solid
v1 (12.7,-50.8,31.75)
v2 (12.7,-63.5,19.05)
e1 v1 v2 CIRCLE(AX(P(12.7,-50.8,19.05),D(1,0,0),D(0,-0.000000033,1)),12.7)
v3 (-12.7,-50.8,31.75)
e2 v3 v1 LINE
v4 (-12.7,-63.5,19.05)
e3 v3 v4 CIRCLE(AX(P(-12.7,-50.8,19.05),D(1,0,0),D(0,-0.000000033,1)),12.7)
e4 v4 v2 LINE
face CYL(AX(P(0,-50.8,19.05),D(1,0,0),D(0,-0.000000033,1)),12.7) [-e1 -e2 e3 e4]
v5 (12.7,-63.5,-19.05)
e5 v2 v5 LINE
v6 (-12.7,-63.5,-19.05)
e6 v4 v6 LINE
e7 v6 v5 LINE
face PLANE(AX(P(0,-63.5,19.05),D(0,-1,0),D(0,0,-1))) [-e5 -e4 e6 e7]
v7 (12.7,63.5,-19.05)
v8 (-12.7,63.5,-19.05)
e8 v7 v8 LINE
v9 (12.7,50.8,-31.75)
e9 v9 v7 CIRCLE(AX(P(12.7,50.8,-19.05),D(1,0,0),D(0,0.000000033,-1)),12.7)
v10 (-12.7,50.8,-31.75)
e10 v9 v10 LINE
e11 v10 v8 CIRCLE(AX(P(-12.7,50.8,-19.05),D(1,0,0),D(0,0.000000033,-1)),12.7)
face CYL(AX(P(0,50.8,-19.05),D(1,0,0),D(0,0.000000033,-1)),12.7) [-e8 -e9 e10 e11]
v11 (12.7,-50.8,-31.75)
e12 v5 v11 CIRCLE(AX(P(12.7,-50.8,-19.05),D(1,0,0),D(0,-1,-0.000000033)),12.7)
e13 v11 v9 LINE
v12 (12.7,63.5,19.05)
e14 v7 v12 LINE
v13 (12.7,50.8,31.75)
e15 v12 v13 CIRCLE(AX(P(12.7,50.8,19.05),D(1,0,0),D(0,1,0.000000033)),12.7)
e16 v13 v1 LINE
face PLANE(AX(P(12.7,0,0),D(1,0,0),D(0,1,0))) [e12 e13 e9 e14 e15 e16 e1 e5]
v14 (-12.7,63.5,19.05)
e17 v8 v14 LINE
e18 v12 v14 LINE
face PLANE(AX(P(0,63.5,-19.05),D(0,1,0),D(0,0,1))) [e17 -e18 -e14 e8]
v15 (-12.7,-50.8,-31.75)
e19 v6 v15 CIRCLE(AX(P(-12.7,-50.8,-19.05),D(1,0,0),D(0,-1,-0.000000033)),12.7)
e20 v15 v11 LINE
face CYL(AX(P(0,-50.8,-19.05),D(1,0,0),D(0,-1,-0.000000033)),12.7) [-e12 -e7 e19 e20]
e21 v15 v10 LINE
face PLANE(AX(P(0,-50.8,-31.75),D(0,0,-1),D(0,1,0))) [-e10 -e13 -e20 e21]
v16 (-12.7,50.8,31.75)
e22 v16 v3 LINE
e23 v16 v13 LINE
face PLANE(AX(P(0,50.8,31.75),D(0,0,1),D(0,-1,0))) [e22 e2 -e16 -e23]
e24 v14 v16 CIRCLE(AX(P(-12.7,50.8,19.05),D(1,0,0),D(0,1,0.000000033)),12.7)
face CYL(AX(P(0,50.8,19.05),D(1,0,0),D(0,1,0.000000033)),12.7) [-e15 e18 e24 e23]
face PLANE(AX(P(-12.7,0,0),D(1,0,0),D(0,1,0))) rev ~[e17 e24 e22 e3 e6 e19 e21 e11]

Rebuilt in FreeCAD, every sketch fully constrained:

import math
import FreeCAD as App
import Part
import Sketcher
Q = App.Units.Quantity

doc = App.newDocument("Part")
body = doc.addObject("PartDesign::Body", "Body")

sketch1 = body.newObject("Sketcher::SketchObject", "Sketch")
sketch1.AttachmentSupport = (doc.getObject("YZ_Plane"), [""])
sketch1.MapMode = "FlatFace"
sketch1.addGeometry([
    Part.ArcOfCircle(Part.Circle(App.Vector(51, 19, 0), App.Vector(0, 0, 1), 13), math.radians(0), math.radians(90)),
    Part.LineSegment(App.Vector(51, 32, 0), App.Vector(-51, 32, 0)),
    Part.ArcOfCircle(Part.Circle(App.Vector(-51, 19, 0), App.Vector(0, 0, 1), 13), math.radians(90), math.radians(180)),
    Part.LineSegment(App.Vector(-64, 19, 0), App.Vector(-64, -19, 0)),
    Part.ArcOfCircle(Part.Circle(App.Vector(-51, -19, 0), App.Vector(0, 0, 1), 13), math.radians(-180), math.radians(-90)),
    Part.LineSegment(App.Vector(-51, -32, 0), App.Vector(51, -32, 0)),
    Part.ArcOfCircle(Part.Circle(App.Vector(51, -19, 0), App.Vector(0, 0, 1), 13), math.radians(-90), math.radians(0)),
    Part.LineSegment(App.Vector(64, -19, 0), App.Vector(64, 19, 0)),
], False)
sketch1.addConstraint([
    Sketcher.Constraint("Tangent", 0, 2, 1, 1),
    Sketcher.Constraint("Tangent", 1, 2, 2, 1),
    Sketcher.Constraint("Tangent", 2, 2, 3, 1),
    Sketcher.Constraint("Tangent", 3, 2, 4, 1),
    Sketcher.Constraint("Tangent", 4, 2, 5, 1),
    Sketcher.Constraint("Tangent", 5, 2, 6, 1),
    Sketcher.Constraint("Tangent", 6, 2, 7, 1),
    Sketcher.Constraint("Tangent", 7, 2, 0, 1),
    Sketcher.Constraint("Horizontal", 1),
    Sketcher.Constraint("Vertical", 3),
    Sketcher.Constraint("Horizontal", 5),
    Sketcher.Constraint("Vertical", 7),
    Sketcher.Constraint("Equal", 0, 2),
    Sketcher.Constraint("Equal", 2, 4),
    Sketcher.Constraint("Equal", 4, 6),
    Sketcher.Constraint("Symmetric", 0, 3, 4, 3, -1, 1),
    Sketcher.Constraint("Radius", 0, Q("0.5 in")),
    Sketcher.Constraint("DistanceX", 1, 2, 1, 1, Q("4 in")),
    Sketcher.Constraint("DistanceY", 3, 2, 3, 1, Q("1.5 in")),
])
pad1 = body.newObject("PartDesign::Pad", "Pad")
pad1.Profile = sketch1
pad1.Length = Q("1 in")
pad1.Midplane = True

doc.recompute()
